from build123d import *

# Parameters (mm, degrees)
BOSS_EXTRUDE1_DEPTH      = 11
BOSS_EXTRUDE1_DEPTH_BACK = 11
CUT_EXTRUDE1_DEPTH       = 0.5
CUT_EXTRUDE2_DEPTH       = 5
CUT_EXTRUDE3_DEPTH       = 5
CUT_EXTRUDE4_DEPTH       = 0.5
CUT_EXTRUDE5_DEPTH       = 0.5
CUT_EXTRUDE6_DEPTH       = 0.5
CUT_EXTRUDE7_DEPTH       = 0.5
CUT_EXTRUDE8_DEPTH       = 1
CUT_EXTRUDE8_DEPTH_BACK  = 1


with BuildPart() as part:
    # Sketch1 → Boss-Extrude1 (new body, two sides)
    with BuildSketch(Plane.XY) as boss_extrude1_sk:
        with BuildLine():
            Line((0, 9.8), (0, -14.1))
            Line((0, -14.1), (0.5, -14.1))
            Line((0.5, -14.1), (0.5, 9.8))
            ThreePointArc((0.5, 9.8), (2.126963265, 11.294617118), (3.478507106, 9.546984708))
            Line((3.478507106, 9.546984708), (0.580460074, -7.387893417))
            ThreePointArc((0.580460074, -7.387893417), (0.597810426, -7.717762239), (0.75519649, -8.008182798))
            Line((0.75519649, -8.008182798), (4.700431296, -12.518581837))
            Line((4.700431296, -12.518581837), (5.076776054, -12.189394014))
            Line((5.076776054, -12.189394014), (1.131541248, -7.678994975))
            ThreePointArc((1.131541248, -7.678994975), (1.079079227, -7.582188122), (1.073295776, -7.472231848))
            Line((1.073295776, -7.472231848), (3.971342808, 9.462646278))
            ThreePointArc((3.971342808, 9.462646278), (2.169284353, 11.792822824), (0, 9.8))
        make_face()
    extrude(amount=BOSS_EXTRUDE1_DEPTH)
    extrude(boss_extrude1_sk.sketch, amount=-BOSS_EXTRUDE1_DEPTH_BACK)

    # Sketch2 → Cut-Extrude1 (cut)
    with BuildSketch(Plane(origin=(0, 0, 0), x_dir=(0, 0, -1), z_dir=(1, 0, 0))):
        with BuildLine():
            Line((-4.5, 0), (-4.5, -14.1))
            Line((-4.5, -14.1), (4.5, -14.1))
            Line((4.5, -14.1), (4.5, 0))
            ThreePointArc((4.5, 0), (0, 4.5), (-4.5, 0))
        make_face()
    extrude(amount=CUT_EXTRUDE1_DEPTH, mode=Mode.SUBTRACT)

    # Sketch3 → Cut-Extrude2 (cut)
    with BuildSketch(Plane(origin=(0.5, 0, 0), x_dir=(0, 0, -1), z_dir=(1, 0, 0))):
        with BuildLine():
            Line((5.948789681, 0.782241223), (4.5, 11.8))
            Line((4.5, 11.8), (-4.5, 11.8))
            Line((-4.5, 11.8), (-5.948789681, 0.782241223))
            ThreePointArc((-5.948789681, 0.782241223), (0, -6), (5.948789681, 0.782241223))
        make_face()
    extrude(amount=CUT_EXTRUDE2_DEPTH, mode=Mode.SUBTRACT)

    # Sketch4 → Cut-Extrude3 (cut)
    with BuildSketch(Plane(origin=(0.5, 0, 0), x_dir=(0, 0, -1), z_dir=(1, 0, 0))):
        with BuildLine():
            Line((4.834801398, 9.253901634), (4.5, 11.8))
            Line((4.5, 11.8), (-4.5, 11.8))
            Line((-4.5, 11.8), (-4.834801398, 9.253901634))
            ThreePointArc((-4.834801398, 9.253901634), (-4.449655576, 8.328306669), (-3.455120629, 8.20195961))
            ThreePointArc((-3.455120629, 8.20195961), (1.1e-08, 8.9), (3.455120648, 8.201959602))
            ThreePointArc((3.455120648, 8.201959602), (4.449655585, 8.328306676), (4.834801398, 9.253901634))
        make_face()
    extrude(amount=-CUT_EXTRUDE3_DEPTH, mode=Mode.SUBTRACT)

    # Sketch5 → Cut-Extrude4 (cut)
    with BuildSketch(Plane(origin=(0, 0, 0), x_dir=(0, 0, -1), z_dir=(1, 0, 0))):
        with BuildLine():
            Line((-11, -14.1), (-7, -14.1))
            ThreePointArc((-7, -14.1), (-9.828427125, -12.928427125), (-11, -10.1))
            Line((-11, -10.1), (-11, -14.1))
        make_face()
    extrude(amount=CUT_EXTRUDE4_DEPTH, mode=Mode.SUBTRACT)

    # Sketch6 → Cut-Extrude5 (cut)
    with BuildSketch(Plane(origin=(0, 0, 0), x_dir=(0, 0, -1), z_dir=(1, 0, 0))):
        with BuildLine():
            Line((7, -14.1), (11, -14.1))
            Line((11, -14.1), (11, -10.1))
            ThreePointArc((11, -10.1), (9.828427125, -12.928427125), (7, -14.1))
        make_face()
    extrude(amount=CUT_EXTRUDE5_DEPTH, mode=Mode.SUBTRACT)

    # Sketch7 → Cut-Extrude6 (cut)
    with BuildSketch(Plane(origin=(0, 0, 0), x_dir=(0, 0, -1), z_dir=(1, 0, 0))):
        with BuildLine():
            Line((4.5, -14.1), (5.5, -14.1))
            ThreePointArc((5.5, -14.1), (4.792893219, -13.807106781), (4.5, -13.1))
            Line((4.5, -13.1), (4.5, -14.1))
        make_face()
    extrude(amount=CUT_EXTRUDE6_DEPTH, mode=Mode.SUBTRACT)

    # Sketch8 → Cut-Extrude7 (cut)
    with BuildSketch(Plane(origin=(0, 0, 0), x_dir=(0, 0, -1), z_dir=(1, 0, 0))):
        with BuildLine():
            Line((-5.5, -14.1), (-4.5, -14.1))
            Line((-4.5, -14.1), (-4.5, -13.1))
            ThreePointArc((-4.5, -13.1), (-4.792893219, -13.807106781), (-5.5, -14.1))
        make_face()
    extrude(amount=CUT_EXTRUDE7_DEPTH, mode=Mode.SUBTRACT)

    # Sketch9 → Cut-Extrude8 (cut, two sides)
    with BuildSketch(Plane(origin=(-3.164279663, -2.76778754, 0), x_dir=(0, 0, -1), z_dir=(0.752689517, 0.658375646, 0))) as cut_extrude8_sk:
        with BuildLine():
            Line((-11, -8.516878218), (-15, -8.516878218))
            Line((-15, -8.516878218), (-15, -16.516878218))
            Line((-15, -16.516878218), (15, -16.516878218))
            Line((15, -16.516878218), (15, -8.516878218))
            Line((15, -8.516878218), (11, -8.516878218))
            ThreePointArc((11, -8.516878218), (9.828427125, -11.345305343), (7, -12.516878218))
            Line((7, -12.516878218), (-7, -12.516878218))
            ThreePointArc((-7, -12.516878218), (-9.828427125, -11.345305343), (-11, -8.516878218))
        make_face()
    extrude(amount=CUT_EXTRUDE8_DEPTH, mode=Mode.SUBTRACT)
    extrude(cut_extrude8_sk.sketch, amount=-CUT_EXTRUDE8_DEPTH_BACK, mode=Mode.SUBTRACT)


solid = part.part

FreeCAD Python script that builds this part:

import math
import FreeCAD as App
import Part
import Sketcher

V = App.Vector
Q = App.Units.Quantity

doc = App.newDocument("Part")
body = doc.addObject("PartDesign::Body", "Body")

# Sketch on XY plane
sketch1 = body.newObject("Sketcher::SketchObject", "Sketch")
sketch1.AttachmentSupport = (doc.getObject("XY_Plane"), [""])
sketch1.MapMode = "FlatFace"
sketch1.addGeometry(Part.LineSegment(V(0, 9.8, 0), V(0, -14.1, 0)), False)
sketch1.addGeometry(Part.LineSegment(V(0, -14.1, 0), V(0.5, -14.1, 0)), False)
sketch1.addGeometry(Part.LineSegment(V(0.5, -14.1, 0), V(0.5, 9.8, 0)), False)
sketch1.addGeometry(Part.ArcOfCircle(Part.Circle(V(2, 9.8, 0), V(0, 0, 1), 1.5), math.radians(-9.710898), math.radians(180)), False)
sketch1.addGeometry(Part.LineSegment(V(3.478507, 9.546985, 0), V(0.58046, -7.387893, 0)), False)
sketch1.addGeometry(Part.ArcOfCircle(Part.Circle(V(1.319714, -7.514401, 0), V(0, 0, 1), 0.75), math.radians(170.289102), math.radians(221.176108)), False)
sketch1.addGeometry(Part.LineSegment(V(0.755196, -8.008183, 0), V(4.700431, -12.518582, 0)), False)
sketch1.addGeometry(Part.LineSegment(V(4.700431, -12.518582, 0), V(5.076776, -12.189394, 0)), False)
sketch1.addGeometry(Part.LineSegment(V(5.076776, -12.189394, 0), V(1.131541, -7.678995, 0)), False)
sketch1.addGeometry(Part.ArcOfCircle(Part.Circle(V(1.319714, -7.514401, 0), V(0, 0, 1), 0.25), math.radians(170.289103), math.radians(221.176107)), False)
sketch1.addGeometry(Part.LineSegment(V(1.073296, -7.472232, 0), V(3.971343, 9.462646, 0)), False)
sketch1.addGeometry(Part.ArcOfCircle(Part.Circle(V(2, 9.8, 0), V(0, 0, 1), 2), math.radians(-9.710898), math.radians(180)), False)
sketch1.addConstraint(Sketcher.Constraint("Coincident", 0, 2, 1, 1))
sketch1.addConstraint(Sketcher.Constraint("Coincident", 1, 2, 2, 1))
sketch1.addConstraint(Sketcher.Constraint("Tangent", 2, 2, 3, 2))
sketch1.addConstraint(Sketcher.Constraint("Tangent", 3, 1, 4, 1))
sketch1.addConstraint(Sketcher.Constraint("Tangent", 4, 2, 5, 1))
sketch1.addConstraint(Sketcher.Constraint("Tangent", 5, 2, 6, 1))
sketch1.addConstraint(Sketcher.Constraint("Coincident", 6, 2, 7, 1))
sketch1.addConstraint(Sketcher.Constraint("Coincident", 7, 2, 8, 1))
sketch1.addConstraint(Sketcher.Constraint("Tangent", 8, 2, 9, 2))
sketch1.addConstraint(Sketcher.Constraint("Tangent", 9, 1, 10, 1))
sketch1.addConstraint(Sketcher.Constraint("Tangent", 10, 2, 11, 1))
sketch1.addConstraint(Sketcher.Constraint("Tangent", 11, 2, 0, 1))
sketch1.addConstraint(Sketcher.Constraint("Vertical", 0))
sketch1.addConstraint(Sketcher.Constraint("Horizontal", 1))
sketch1.addConstraint(Sketcher.Constraint("Vertical", 2))
sketch1.addConstraint(Sketcher.Constraint("Coincident", 9, 3, 5, 3))
sketch1.addConstraint(Sketcher.Constraint("Coincident", 11, 3, 3, 3))
sketch1.addConstraint(Sketcher.Constraint("PointOnObject", 0, 2, -2))
sketch1.addConstraint(Sketcher.Constraint("Perpendicular", 6, 7))
sketch1.addConstraint(Sketcher.Constraint("Perpendicular", 7, 8))
sketch1.addConstraint(Sketcher.Constraint("Parallel", 4, 10))
sketch1.addConstraint(Sketcher.Constraint("Radius", 11, Q("2 mm")))
sketch1.addConstraint(Sketcher.Constraint("Radius", 3, Q("1.5 mm")))
sketch1.addConstraint(Sketcher.Constraint("Radius", 5, Q("0.75 mm")))
sketch1.addConstraint(Sketcher.Constraint("DistanceY", 0, 2, 0, 1, Q("23.9 mm")))
sketch1.addConstraint(Sketcher.Constraint("DistanceY", -1, 1, 3, 3, Q("9.8 mm")))
sketch1.addConstraint(Sketcher.Constraint("DistanceY", 5, 3, -1, 1, Q("7.514401 mm")))
sketch1.addConstraint(Sketcher.Constraint("DistanceY", 6, 2, 5, 2, Q("4.510399 mm")))
sketch1.addConstraint(Sketcher.Constraint("DistanceY", 8, 2, 4, 2, Q("0.291102 mm")))
sketch1.addConstraint(Sketcher.Constraint("DistanceX", 5, 2, 9, 1, Q("0.318099 mm")))
pad1 = body.newObject("PartDesign::Pad", "Pad")
pad1.Profile = sketch1
pad1.Type = "TwoLengths"
pad1.Length = 11
pad1.Length2 = 11

# Sketch on YZ plane
sketch2 = body.newObject("Sketcher::SketchObject", "Sketch001")
sketch2.AttachmentSupport = (doc.getObject("YZ_Plane"), [""])
sketch2.MapMode = "FlatFace"
sketch2.addGeometry(Part.LineSegment(V(0, 4.5, 0), V(-14.1, 4.5, 0)), False)
sketch2.addGeometry(Part.LineSegment(V(-14.1, 4.5, 0), V(-14.1, -4.5, 0)), False)
sketch2.addGeometry(Part.LineSegment(V(-14.1, -4.5, 0), V(0, -4.5, 0)), False)
sketch2.addGeometry(Part.ArcOfCircle(Part.Circle(V(0, 0, 0), V(0, 0, 1), 4.5), math.radians(-90), math.radians(90)), False)
sketch2.addConstraint(Sketcher.Constraint("Coincident", 0, 2, 1, 1))
sketch2.addConstraint(Sketcher.Constraint("Coincident", 1, 2, 2, 1))
sketch2.addConstraint(Sketcher.Constraint("Tangent", 2, 2, 3, 1))
sketch2.addConstraint(Sketcher.Constraint("Tangent", 3, 2, 0, 1))
sketch2.addConstraint(Sketcher.Constraint("Horizontal", 0))
sketch2.addConstraint(Sketcher.Constraint("Vertical", 1))
sketch2.addConstraint(Sketcher.Constraint("Horizontal", 2))
sketch2.addConstraint(Sketcher.Constraint("Coincident", 3, 3, -1, 1))
sketch2.addConstraint(Sketcher.Constraint("Radius", 3, Q("4.5 mm")))
sketch2.addConstraint(Sketcher.Constraint("DistanceX", 0, 2, 0, 1, Q("14.1 mm")))
pocket1 = body.newObject("PartDesign::Pocket", "Pocket")
pocket1.Profile = sketch2
pocket1.Length = 0.5
pocket1.Reversed = True

# Sketch on YZ plane
sketch3 = body.newObject("Sketcher::SketchObject", "Sketch002")
sketch3.AttachmentSupport = (doc.getObject("YZ_Plane"), [""])
sketch3.MapMode = "FlatFace"
sketch3.AttachmentOffset = App.Placement(V(0, 0, 0.5), App.Rotation())
sketch3.addGeometry(Part.LineSegment(V(0.782241, -5.94879, 0), V(11.8, -4.5, 0)), False)
sketch3.addGeometry(Part.LineSegment(V(11.8, -4.5, 0), V(11.8, 4.5, 0)), False)
sketch3.addGeometry(Part.LineSegment(V(11.8, 4.5, 0), V(0.782241, 5.94879, 0)), False)
sketch3.addGeometry(Part.ArcOfCircle(Part.Circle(V(0, 0, 0), V(0, 0, 1), 6), math.radians(82.508822), math.radians(277.491178)), False)
sketch3.addConstraint(Sketcher.Constraint("Coincident", 0, 2, 1, 1))
sketch3.addConstraint(Sketcher.Constraint("Coincident", 1, 2, 2, 1))
sketch3.addConstraint(Sketcher.Constraint("Tangent", 2, 2, 3, 1))
sketch3.addConstraint(Sketcher.Constraint("Tangent", 3, 2, 0, 1))
sketch3.addConstraint(Sketcher.Constraint("Vertical", 1))
sketch3.addConstraint(Sketcher.Constraint("Coincident", 3, 3, -1, 1))
sketch3.addConstraint(Sketcher.Constraint("Vertical", 2, 2, 3, 2))
sketch3.addConstraint(Sketcher.Constraint("Radius", 3, Q("6 mm")))
sketch3.addConstraint(Sketcher.Constraint("DistanceY", 1, 1, 1, 2, Q("9 mm")))
sketch3.addConstraint(Sketcher.Constraint("DistanceX", -1, 1, 0, 2, Q("11.8 mm")))
pocket2 = body.newObject("PartDesign::Pocket", "Pocket001")
pocket2.Profile = sketch3
pocket2.Length = 5
pocket2.Reversed = True

# Sketch on YZ plane
sketch4 = body.newObject("Sketcher::SketchObject", "Sketch003")
sketch4.AttachmentSupport = (doc.getObject("YZ_Plane"), [""])
sketch4.MapMode = "FlatFace"
sketch4.AttachmentOffset = App.Placement(V(0, 0, 0.5), App.Rotation())
sketch4.addGeometry(Part.LineSegment(V(9.253902, -4.834801, 0), V(11.8, -4.5, 0)), False)
sketch4.addGeometry(Part.LineSegment(V(11.8, -4.5, 0), V(11.8, 4.5, 0)), False)
sketch4.addGeometry(Part.LineSegment(V(11.8, 4.5, 0), V(9.253902, 4.834801, 0)), False)
sketch4.addGeometry(Part.ArcOfCircle(Part.Circle(V(9.123528, 3.843336, 0), V(0, 0, 1), 1), math.radians(82.508822), math.radians(202.843528)), False)
sketch4.addGeometry(Part.ArcOfCircle(Part.Circle(V(0, 0, 0), V(0, 0, 1), 8.9), math.radians(-22.843527), math.radians(22.843527)), False)
sketch4.addGeometry(Part.ArcOfCircle(Part.Circle(V(9.123528, -3.843336, 0), V(0, 0, 1), 1), math.radians(157.156473), math.radians(277.491178)), False)
sketch4.addConstraint(Sketcher.Constraint("Coincident", 0, 2, 1, 1))
sketch4.addConstraint(Sketcher.Constraint("Coincident", 1, 2, 2, 1))
sketch4.addConstraint(Sketcher.Constraint("Tangent", 2, 2, 3, 1))
sketch4.addConstraint(Sketcher.Constraint("Tangent", 3, 2, 4, 2))
sketch4.addConstraint(Sketcher.Constraint("Tangent", 4, 1, 5, 1))
sketch4.addConstraint(Sketcher.Constraint("Tangent", 5, 2, 0, 1))
sketch4.addConstraint(Sketcher.Constraint("Vertical", 1))
sketch4.addConstraint(Sketcher.Constraint("Coincident", 4, 3, -1, 1))
sketch4.addConstraint(Sketcher.Constraint("Equal", 3, 5))
sketch4.addConstraint(Sketcher.Constraint("Symmetric", 2, 2, 5, 2, -1))
sketch4.addConstraint(Sketcher.Constraint("Radius", 3, Q("1 mm")))
sketch4.addConstraint(Sketcher.Constraint("Radius", 4, Q("8.9 mm")))
sketch4.addConstraint(Sketcher.Constraint("DistanceY", 1, 1, 1, 2, Q("9 mm")))
sketch4.addConstraint(Sketcher.Constraint("DistanceX", -1, 1, 0, 2, Q("11.8 mm")))
sketch4.addConstraint(Sketcher.Constraint("DistanceX", -1, 1, 2, 2, Q("9.253902 mm")))
pocket3 = body.newObject("PartDesign::Pocket", "Pocket002")
pocket3.Profile = sketch4
pocket3.Length = 5

# Sketch on YZ plane
sketch5 = body.newObject("Sketcher::SketchObject", "Sketch004")
sketch5.AttachmentSupport = (doc.getObject("YZ_Plane"), [""])
sketch5.MapMode = "FlatFace"
sketch5.addGeometry(Part.LineSegment(V(-14.1, 11, 0), V(-14.1, 7, 0)), False)
sketch5.addGeometry(Part.ArcOfCircle(Part.Circle(V(-10.1, 7, 0), V(0, 0, 1), 4), math.radians(90), math.radians(180)), False)
sketch5.addGeometry(Part.LineSegment(V(-10.1, 11, 0), V(-14.1, 11, 0)), False)
sketch5.addConstraint(Sketcher.Constraint("Tangent", 0, 2, 1, 2))
sketch5.addConstraint(Sketcher.Constraint("Tangent", 1, 1, 2, 1))
sketch5.addConstraint(Sketcher.Constraint("Coincident", 2, 2, 0, 1))
sketch5.addConstraint(Sketcher.Constraint("Vertical", 0))
sketch5.addConstraint(Sketcher.Constraint("Horizontal", 2))
sketch5.addConstraint(Sketcher.Constraint("Radius", 1, Q("4 mm")))
sketch5.addConstraint(Sketcher.Constraint("DistanceY", -1, 1, 1, 3, Q("7 mm")))
sketch5.addConstraint(Sketcher.Constraint("DistanceX", 1, 3, -1, 1, Q("10.1 mm")))
pocket4 = body.newObject("PartDesign::Pocket", "Pocket003")
pocket4.Profile = sketch5
pocket4.Length = 0.5
pocket4.Reversed = True

# Sketch on YZ plane
sketch6 = body.newObject("Sketcher::SketchObject", "Sketch005")
sketch6.AttachmentSupport = (doc.getObject("YZ_Plane"), [""])
sketch6.MapMode = "FlatFace"
sketch6.addGeometry(Part.LineSegment(V(-14.1, -7, 0), V(-14.1, -11, 0)), False)
sketch6.addGeometry(Part.LineSegment(V(-14.1, -11, 0), V(-10.1, -11, 0)), False)
sketch6.addGeometry(Part.ArcOfCircle(Part.Circle(V(-10.1, -7, 0), V(0, 0, 1), 4), math.radians(180), math.radians(270)), False)
sketch6.addConstraint(Sketcher.Constraint("Coincident", 0, 2, 1, 1))
sketch6.addConstraint(Sketcher.Constraint("Tangent", 1, 2, 2, 2))
sketch6.addConstraint(Sketcher.Constraint("Tangent", 2, 1, 0, 1))
sketch6.addConstraint(Sketcher.Constraint("Vertical", 0))
sketch6.addConstraint(Sketcher.Constraint("Horizontal", 1))
sketch6.addConstraint(Sketcher.Constraint("Radius", 2, Q("4 mm")))
sketch6.addConstraint(Sketcher.Constraint("DistanceY", 2, 3, -1, 1, Q("7 mm")))
sketch6.addConstraint(Sketcher.Constraint("DistanceX", 2, 3, -1, 1, Q("10.1 mm")))
pocket5 = body.newObject("PartDesign::Pocket", "Pocket004")
pocket5.Profile = sketch6
pocket5.Length = 0.5
pocket5.Reversed = True

# Sketch on YZ plane
sketch7 = body.newObject("Sketcher::SketchObject", "Sketch006")
sketch7.AttachmentSupport = (doc.getObject("YZ_Plane"), [""])
sketch7.MapMode = "FlatFace"
sketch7.addGeometry(Part.LineSegment(V(-14.1, -4.5, 0), V(-14.1, -5.5, 0)), False)
sketch7.addGeometry(Part.ArcOfCircle(Part.Circle(V(-13.1, -5.5, 0), V(0, 0, 1), 1), math.radians(90), math.radians(180)), False)
sketch7.addGeometry(Part.LineSegment(V(-13.1, -4.5, 0), V(-14.1, -4.5, 0)), False)
sketch7.addConstraint(Sketcher.Constraint("Tangent", 0, 2, 1, 2))
sketch7.addConstraint(Sketcher.Constraint("Tangent", 1, 1, 2, 1))
sketch7.addConstraint(Sketcher.Constraint("Coincident", 2, 2, 0, 1))
sketch7.addConstraint(Sketcher.Constraint("Vertical", 0))
sketch7.addConstraint(Sketcher.Constraint("Horizontal", 2))
sketch7.addConstraint(Sketcher.Constraint("Radius", 1, Q("1 mm")))
sketch7.addConstraint(Sketcher.Constraint("DistanceX", 1, 3, -1, 1, Q("13.1 mm")))
sketch7.addConstraint(Sketcher.Constraint("DistanceY", 1, 3, -1, 1, Q("5.5 mm")))
pocket6 = body.newObject("PartDesign::Pocket", "Pocket005")
pocket6.Profile = sketch7
pocket6.Length = 0.5
pocket6.Reversed = True

# Sketch on YZ plane
sketch8 = body.newObject("Sketcher::SketchObject", "Sketch007")
sketch8.AttachmentSupport = (doc.getObject("YZ_Plane"), [""])
sketch8.MapMode = "FlatFace"
sketch8.addGeometry(Part.LineSegment(V(-14.1, 5.5, 0), V(-14.1, 4.5, 0)), False)
sketch8.addGeometry(Part.LineSegment(V(-14.1, 4.5, 0), V(-13.1, 4.5, 0)), False)
sketch8.addGeometry(Part.ArcOfCircle(Part.Circle(V(-13.1, 5.5, 0), V(0, 0, 1), 1), math.radians(-180), math.radians(-90)), False)
sketch8.addConstraint(Sketcher.Constraint("Coincident", 0, 2, 1, 1))
sketch8.addConstraint(Sketcher.Constraint("Tangent", 1, 2, 2, 2))
sketch8.addConstraint(Sketcher.Constraint("Tangent", 2, 1, 0, 1))
sketch8.addConstraint(Sketcher.Constraint("Vertical", 0))
sketch8.addConstraint(Sketcher.Constraint("Horizontal", 1))
sketch8.addConstraint(Sketcher.Constraint("Radius", 2, Q("1 mm")))
sketch8.addConstraint(Sketcher.Constraint("DistanceX", 2, 3, -1, 1, Q("13.1 mm")))
sketch8.addConstraint(Sketcher.Constraint("DistanceY", -1, 1, 2, 3, Q("5.5 mm")))
pocket7 = body.newObject("PartDesign::Pocket", "Pocket006")
pocket7.Profile = sketch8
pocket7.Length = 0.5
pocket7.Reversed = True

# Sketch on an angled plane
sketch9 = body.newObject("Sketcher::SketchObject", "Sketch008")
sketch9.Placement = App.Placement(V(-3.16428, -2.767788, 0), App.Rotation(V(0, 0, -1), V(-0.658375646, 0.752689517, 0), V(0.752689517, 0.658375646, 0), "ZXY"))
sketch9.addGeometry(Part.LineSegment(V(-11, -8.516878, 0), V(-15, -8.516878, 0)), False)
sketch9.addGeometry(Part.LineSegment(V(-15, -8.516878, 0), V(-15, -16.516878, 0)), False)
sketch9.addGeometry(Part.LineSegment(V(-15, -16.516878, 0), V(15, -16.516878, 0)), False)
sketch9.addGeometry(Part.LineSegment(V(15, -16.516878, 0), V(15, -8.516878, 0)), False)
sketch9.addGeometry(Part.LineSegment(V(15, -8.516878, 0), V(11, -8.516878, 0)), False)
sketch9.addGeometry(Part.ArcOfCircle(Part.Circle(V(7, -8.516878, 0), V(0, 0, 1), 4), math.radians(-90), math.radians(0)), False)
sketch9.addGeometry(Part.LineSegment(V(7, -12.516878, 0), V(-7, -12.516878, 0)), False)
sketch9.addGeometry(Part.ArcOfCircle(Part.Circle(V(-7, -8.516878, 0), V(0, 0, 1), 4), math.radians(180), math.radians(270)), False)
sketch9.addConstraint(Sketcher.Constraint("Coincident", 0, 2, 1, 1))
sketch9.addConstraint(Sketcher.Constraint("Coincident", 1, 2, 2, 1))
sketch9.addConstraint(Sketcher.Constraint("Coincident", 2, 2, 3, 1))
sketch9.addConstraint(Sketcher.Constraint("Coincident", 3, 2, 4, 1))
sketch9.addConstraint(Sketcher.Constraint("Coincident", 4, 2, 5, 2))
sketch9.addConstraint(Sketcher.Constraint("Tangent", 5, 1, 6, 1))
sketch9.addConstraint(Sketcher.Constraint("Tangent", 6, 2, 7, 2))
sketch9.addConstraint(Sketcher.Constraint("Coincident", 7, 1, 0, 1))
sketch9.addConstraint(Sketcher.Constraint("Horizontal", 0))
sketch9.addConstraint(Sketcher.Constraint("Vertical", 1))
sketch9.addConstraint(Sketcher.Constraint("Horizontal", 2))
sketch9.addConstraint(Sketcher.Constraint("Vertical", 3))
sketch9.addConstraint(Sketcher.Constraint("Horizontal", 4))
sketch9.addConstraint(Sketcher.Constraint("Horizontal", 6))
sketch9.addConstraint(Sketcher.Constraint("Equal", 5, 7))
sketch9.addConstraint(Sketcher.Constraint("Symmetric", 0, 2, 3, 2, -2))
sketch9.addConstraint(Sketcher.Constraint("Horizontal", 7, 3, 0, 2))
sketch9.addConstraint(Sketcher.Constraint("Equal", 0, 4))
sketch9.addConstraint(Sketcher.Constraint("Radius", 5, Q("4 mm")))
sketch9.addConstraint(Sketcher.Constraint("DistanceX", 0, 2, 0, 1, Q("4 mm")))
sketch9.addConstraint(Sketcher.Constraint("DistanceX", 2, 1, 2, 2, Q("30 mm")))
sketch9.addConstraint(Sketcher.Constraint("DistanceY", 1, 2, 1, 1, Q("8 mm")))
sketch9.addConstraint(Sketcher.Constraint("DistanceY", 5, 3, -1, 1, Q("8.516878 mm")))
pocket8 = body.newObject("PartDesign::Pocket", "Pocket007")
pocket8.Profile = sketch9
pocket8.Type = "ThroughAll"
pocket8.Midplane = True

doc.recompute()
